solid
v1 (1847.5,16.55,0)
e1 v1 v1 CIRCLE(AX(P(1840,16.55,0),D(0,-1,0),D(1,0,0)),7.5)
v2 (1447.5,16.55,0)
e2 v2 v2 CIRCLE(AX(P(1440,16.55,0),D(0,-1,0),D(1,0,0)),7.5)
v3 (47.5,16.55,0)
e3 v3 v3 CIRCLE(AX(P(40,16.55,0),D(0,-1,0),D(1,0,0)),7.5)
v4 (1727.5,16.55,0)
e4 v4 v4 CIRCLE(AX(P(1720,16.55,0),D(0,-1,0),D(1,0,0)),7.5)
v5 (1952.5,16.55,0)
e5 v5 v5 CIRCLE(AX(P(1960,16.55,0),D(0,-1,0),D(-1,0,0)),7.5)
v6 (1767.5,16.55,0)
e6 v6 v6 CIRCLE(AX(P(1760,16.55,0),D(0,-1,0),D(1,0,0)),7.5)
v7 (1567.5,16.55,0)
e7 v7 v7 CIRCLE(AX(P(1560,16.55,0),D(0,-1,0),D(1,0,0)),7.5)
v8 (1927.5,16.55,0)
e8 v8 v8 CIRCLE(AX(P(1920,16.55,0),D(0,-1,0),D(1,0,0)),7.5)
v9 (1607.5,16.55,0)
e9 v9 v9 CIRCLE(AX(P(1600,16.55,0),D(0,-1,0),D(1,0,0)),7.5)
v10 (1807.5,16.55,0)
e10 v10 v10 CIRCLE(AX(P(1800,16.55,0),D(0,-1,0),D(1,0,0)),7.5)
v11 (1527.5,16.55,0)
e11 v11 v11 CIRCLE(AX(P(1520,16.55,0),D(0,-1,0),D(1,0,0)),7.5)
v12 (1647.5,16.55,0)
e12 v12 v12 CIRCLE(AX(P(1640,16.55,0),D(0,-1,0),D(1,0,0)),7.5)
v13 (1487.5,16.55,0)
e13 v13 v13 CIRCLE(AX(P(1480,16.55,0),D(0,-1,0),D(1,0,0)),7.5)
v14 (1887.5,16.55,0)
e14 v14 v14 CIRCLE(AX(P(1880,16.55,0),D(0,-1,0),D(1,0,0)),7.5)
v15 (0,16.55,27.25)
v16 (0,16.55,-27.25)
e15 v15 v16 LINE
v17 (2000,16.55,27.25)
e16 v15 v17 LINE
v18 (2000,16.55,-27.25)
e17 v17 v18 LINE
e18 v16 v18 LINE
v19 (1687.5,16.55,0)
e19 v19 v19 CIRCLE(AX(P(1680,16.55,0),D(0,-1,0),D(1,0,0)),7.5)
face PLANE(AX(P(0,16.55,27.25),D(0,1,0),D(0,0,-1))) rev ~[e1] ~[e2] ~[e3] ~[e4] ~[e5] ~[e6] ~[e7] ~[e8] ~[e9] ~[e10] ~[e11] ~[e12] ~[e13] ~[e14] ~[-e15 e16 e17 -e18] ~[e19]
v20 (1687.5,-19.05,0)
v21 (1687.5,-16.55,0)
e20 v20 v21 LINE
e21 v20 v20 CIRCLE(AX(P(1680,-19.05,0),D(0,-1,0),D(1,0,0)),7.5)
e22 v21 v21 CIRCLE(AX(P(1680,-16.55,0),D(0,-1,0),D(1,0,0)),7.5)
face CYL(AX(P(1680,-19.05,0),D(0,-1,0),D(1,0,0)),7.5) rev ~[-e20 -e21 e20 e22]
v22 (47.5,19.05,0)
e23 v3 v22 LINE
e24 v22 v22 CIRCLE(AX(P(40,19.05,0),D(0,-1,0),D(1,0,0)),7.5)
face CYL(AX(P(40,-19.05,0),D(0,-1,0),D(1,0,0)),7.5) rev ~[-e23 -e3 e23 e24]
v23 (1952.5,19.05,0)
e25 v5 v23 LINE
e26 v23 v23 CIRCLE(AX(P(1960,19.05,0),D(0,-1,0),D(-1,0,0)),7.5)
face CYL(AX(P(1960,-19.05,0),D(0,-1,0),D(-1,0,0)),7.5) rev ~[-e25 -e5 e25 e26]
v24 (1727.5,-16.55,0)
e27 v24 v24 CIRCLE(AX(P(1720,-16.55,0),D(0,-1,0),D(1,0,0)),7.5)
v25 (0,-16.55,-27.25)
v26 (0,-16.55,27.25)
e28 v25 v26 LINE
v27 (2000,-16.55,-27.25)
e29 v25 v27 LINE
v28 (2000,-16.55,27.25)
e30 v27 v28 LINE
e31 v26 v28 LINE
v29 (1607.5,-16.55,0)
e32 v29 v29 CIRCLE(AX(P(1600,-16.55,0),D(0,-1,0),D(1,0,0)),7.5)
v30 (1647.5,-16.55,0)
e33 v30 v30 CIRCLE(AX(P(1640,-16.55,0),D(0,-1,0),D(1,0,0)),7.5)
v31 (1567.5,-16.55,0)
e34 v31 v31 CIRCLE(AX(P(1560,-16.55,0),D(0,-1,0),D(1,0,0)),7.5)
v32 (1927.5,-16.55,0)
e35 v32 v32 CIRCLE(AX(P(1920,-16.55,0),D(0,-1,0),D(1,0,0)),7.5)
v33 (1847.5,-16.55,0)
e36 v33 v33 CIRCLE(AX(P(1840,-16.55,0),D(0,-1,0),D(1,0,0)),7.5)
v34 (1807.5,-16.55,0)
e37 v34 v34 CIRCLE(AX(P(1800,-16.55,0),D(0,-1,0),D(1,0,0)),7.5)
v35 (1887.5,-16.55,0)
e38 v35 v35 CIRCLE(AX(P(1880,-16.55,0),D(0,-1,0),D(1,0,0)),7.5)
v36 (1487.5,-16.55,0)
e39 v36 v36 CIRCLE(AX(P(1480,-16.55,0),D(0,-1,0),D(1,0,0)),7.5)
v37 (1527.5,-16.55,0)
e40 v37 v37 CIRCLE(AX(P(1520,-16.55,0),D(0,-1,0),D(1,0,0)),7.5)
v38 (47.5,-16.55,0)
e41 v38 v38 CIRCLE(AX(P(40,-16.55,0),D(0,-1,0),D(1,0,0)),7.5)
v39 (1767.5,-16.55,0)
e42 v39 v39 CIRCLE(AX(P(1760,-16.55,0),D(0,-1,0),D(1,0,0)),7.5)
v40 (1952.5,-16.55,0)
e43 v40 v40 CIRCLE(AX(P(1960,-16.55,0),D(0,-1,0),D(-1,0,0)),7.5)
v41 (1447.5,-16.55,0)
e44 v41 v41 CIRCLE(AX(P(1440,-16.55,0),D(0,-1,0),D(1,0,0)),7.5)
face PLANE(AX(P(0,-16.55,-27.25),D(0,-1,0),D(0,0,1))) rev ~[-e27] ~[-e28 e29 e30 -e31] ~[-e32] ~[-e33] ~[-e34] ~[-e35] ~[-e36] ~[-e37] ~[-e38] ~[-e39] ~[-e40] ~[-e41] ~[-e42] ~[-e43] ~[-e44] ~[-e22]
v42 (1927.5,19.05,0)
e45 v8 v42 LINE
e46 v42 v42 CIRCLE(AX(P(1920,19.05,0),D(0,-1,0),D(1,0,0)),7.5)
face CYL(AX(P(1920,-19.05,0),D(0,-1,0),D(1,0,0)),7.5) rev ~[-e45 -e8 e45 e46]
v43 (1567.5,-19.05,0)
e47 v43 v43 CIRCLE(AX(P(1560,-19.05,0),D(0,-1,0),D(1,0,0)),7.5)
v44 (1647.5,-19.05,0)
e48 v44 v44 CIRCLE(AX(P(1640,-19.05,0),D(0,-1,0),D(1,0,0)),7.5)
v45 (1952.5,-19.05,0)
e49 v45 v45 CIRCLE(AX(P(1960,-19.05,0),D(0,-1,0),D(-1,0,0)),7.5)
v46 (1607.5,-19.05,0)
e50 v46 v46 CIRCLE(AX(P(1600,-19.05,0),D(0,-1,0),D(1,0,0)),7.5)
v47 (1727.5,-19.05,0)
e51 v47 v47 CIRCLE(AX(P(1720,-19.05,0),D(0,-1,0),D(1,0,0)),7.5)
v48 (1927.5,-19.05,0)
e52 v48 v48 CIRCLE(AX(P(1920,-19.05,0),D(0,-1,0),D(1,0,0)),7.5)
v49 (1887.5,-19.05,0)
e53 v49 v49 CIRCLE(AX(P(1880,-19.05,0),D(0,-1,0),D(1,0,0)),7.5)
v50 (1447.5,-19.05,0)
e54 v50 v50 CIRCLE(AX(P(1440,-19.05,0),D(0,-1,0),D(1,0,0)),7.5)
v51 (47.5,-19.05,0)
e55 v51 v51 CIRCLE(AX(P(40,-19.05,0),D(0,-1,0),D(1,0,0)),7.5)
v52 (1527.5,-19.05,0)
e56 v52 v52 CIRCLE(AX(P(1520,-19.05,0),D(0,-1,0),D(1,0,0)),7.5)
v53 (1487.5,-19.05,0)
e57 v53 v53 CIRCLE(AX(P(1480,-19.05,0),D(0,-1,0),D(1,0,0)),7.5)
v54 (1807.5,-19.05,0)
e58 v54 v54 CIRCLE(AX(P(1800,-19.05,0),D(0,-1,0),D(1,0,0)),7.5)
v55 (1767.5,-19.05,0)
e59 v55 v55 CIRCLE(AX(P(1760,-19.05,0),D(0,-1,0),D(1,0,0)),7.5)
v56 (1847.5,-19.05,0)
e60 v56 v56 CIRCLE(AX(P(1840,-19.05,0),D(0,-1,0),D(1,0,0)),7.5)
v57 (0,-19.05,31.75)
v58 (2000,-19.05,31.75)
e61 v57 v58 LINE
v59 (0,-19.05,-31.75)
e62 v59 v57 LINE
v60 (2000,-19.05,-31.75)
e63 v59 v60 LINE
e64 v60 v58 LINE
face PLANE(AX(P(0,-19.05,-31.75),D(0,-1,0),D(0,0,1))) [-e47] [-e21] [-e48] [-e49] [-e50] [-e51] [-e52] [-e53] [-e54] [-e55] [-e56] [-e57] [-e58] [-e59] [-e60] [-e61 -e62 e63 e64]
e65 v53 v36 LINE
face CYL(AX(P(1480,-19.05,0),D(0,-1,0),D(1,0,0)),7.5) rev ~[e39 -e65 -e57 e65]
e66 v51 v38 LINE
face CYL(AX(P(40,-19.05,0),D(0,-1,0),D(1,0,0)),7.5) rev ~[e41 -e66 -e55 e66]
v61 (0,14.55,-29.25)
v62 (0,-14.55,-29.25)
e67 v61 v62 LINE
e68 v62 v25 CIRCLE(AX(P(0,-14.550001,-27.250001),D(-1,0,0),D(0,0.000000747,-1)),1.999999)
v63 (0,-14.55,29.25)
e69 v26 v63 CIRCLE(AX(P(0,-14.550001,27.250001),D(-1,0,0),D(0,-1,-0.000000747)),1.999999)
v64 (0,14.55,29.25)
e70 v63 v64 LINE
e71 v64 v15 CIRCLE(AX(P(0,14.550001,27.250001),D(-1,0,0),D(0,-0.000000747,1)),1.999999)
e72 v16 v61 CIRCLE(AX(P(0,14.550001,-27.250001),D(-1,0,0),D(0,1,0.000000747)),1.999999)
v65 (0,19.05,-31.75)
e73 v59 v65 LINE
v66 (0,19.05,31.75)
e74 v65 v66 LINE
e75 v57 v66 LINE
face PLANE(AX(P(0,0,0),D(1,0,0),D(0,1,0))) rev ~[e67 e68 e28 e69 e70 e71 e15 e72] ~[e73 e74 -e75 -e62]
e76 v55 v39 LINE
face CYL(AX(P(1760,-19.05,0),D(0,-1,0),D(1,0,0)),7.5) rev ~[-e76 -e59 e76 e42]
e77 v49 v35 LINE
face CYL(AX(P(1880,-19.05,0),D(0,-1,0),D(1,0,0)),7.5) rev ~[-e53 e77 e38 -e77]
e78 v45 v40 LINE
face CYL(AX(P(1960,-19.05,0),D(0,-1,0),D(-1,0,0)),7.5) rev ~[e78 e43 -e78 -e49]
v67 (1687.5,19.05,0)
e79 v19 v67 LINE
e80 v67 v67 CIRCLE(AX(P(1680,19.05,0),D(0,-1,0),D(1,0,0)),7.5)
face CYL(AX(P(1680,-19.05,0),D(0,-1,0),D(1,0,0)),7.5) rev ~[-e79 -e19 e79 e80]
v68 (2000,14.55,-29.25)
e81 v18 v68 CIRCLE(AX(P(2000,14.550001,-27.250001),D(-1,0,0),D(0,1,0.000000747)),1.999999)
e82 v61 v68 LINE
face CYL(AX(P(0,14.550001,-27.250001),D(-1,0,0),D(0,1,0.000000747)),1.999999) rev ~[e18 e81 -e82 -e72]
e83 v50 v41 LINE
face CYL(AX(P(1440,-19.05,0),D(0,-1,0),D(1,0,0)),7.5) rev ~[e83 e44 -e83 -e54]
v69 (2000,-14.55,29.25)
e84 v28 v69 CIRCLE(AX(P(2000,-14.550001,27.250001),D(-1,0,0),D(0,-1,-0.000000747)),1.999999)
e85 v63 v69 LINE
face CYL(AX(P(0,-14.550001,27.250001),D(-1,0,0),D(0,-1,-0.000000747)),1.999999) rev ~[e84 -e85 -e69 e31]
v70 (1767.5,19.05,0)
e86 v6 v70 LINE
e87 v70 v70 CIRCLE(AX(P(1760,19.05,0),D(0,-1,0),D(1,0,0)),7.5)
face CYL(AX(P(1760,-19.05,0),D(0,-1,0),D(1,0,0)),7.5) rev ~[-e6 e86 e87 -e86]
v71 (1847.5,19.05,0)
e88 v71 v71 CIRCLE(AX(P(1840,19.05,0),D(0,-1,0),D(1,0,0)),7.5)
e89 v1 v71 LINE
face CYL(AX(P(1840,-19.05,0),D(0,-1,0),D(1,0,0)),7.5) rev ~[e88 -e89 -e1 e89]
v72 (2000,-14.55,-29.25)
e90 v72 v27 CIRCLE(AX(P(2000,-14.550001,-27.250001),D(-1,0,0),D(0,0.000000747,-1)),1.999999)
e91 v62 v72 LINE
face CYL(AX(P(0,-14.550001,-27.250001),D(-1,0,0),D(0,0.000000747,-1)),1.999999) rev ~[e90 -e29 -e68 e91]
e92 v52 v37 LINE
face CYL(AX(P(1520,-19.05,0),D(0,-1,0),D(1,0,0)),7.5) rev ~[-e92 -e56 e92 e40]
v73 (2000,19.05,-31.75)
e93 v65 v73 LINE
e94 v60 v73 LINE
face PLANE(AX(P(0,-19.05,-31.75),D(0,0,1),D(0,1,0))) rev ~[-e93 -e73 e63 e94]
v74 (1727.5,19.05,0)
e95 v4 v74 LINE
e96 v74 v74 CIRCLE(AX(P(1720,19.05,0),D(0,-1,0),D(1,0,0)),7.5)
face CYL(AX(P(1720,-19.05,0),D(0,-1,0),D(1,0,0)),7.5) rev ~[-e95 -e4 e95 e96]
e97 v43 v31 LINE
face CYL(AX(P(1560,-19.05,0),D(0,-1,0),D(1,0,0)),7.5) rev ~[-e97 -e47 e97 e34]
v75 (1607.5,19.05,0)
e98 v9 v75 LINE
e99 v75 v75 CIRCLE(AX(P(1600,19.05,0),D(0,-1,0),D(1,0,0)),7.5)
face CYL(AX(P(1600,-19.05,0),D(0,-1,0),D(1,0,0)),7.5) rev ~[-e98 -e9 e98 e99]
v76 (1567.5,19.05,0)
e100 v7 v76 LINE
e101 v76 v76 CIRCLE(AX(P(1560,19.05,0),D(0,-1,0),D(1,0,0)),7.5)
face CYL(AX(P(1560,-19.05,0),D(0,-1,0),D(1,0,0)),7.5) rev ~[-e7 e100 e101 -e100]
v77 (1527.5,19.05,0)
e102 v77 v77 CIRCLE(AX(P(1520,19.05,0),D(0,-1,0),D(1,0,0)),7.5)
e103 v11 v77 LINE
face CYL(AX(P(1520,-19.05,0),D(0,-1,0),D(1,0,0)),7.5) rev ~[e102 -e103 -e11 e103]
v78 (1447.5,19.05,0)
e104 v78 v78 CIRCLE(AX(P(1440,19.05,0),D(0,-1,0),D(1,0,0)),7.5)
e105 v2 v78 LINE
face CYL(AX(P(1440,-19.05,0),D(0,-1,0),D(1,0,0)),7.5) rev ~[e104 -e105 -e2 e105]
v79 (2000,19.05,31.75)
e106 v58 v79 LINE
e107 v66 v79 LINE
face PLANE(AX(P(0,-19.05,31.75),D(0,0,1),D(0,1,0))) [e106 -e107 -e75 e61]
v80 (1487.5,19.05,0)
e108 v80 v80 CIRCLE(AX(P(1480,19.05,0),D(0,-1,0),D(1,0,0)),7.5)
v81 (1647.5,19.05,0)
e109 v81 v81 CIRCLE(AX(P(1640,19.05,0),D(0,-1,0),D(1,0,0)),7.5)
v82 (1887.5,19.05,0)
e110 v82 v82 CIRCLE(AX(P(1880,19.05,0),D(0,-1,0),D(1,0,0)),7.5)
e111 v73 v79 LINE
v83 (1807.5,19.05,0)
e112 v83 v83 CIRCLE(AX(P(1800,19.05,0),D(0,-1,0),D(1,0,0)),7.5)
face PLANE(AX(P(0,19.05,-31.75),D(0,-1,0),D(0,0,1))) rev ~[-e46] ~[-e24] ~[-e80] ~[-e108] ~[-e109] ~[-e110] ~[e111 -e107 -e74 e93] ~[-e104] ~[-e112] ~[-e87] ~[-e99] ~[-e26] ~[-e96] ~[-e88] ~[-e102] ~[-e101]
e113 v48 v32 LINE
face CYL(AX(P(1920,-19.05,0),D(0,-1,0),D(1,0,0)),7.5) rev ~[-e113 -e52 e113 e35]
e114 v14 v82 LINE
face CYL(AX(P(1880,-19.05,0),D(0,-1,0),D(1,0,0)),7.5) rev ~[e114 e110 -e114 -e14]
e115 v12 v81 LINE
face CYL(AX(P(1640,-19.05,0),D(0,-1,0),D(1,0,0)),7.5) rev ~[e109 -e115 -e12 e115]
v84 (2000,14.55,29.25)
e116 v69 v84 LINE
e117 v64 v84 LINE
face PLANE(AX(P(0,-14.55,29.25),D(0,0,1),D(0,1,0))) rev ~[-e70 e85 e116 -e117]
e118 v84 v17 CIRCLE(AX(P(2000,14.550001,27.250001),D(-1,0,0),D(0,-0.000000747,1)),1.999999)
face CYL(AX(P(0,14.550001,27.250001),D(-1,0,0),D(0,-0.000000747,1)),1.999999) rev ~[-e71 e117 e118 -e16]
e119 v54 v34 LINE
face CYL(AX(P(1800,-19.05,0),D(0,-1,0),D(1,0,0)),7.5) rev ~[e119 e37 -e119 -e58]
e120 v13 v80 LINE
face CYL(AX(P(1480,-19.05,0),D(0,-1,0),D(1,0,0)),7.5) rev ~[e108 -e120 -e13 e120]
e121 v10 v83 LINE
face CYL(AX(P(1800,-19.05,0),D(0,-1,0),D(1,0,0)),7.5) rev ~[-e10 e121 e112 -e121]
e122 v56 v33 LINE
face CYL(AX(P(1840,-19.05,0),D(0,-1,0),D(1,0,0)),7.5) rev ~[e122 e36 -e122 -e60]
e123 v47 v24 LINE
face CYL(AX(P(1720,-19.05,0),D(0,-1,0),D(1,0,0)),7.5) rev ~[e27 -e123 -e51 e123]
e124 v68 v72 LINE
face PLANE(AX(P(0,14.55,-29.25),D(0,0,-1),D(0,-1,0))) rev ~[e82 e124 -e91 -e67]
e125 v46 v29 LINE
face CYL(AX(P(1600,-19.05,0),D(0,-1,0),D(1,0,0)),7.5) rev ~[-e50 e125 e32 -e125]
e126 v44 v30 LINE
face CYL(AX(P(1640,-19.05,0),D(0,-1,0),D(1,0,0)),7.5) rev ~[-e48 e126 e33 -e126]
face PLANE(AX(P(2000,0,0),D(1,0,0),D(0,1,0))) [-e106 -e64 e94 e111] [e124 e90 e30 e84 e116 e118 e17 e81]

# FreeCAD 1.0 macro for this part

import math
import FreeCAD as App
import Part
import Sketcher
Q = App.Units.Quantity

doc = App.newDocument("Part")
body = doc.addObject("PartDesign::Body", "Body")

sketch1 = body.newObject("Sketcher::SketchObject", "Sketch")
sketch1.AttachmentSupport = (doc.getObject("YZ_Plane"), [""])
sketch1.MapMode = "FlatFace"
sketch1.addGeometry([
    Part.LineSegment(App.Vector(-19.1, 31.8, 0), App.Vector(-19.1, -31.8, 0)),
    Part.LineSegment(App.Vector(-19.1, -31.8, 0), App.Vector(19.1, -31.8, 0)),
    Part.LineSegment(App.Vector(19.1, -31.8, 0), App.Vector(19.1, 31.8, 0)),
    Part.LineSegment(App.Vector(19.1, 31.8, 0), App.Vector(-19.1, 31.8, 0)),
    Part.ArcOfCircle(Part.Circle(App.Vector(-14.6, 27.3, 0), App.Vector(0, 0, 1), 2), math.radians(90), math.radians(180)),
    Part.LineSegment(App.Vector(-14.6, 29.2, 0), App.Vector(14.6, 29.2, 0)),
    Part.ArcOfCircle(Part.Circle(App.Vector(14.6, 27.3, 0), App.Vector(0, 0, 1), 2), math.radians(0), math.radians(90)),
    Part.LineSegment(App.Vector(16.6, 27.2, 0), App.Vector(16.6, -27.2, 0)),
    Part.ArcOfCircle(Part.Circle(App.Vector(14.6, -27.3, 0), App.Vector(0, 0, 1), 2), math.radians(-90), math.radians(0)),
    Part.LineSegment(App.Vector(14.6, -29.2, 0), App.Vector(-14.6, -29.2, 0)),
    Part.ArcOfCircle(Part.Circle(App.Vector(-14.6, -27.3, 0), App.Vector(0, 0, 1), 2), math.radians(180), math.radians(270)),
    Part.LineSegment(App.Vector(-16.6, -27.2, 0), App.Vector(-16.6, 27.2, 0)),
], False)
sketch1.addConstraint([
    Sketcher.Constraint("Coincident", 0, 2, 1, 1),
    Sketcher.Constraint("Coincident", 1, 2, 2, 1),
    Sketcher.Constraint("Coincident", 2, 2, 3, 1),
    Sketcher.Constraint("Coincident", 3, 2, 0, 1),
    Sketcher.Constraint("Tangent", 4, 1, 5, 1),
    Sketcher.Constraint("Tangent", 5, 2, 6, 2),
    Sketcher.Constraint("Tangent", 6, 1, 7, 1),
    Sketcher.Constraint("Tangent", 7, 2, 8, 2),
    Sketcher.Constraint("Tangent", 8, 1, 9, 1),
    Sketcher.Constraint("Tangent", 9, 2, 10, 2),
    Sketcher.Constraint("Tangent", 10, 1, 11, 1),
    Sketcher.Constraint("Tangent", 11, 2, 4, 2),
    Sketcher.Constraint("Vertical", 0),
    Sketcher.Constraint("Horizontal", 1),
    Sketcher.Constraint("Vertical", 2),
    Sketcher.Constraint("Horizontal", 3),
    Sketcher.Constraint("Horizontal", 5),
    Sketcher.Constraint("Vertical", 7),
    Sketcher.Constraint("Horizontal", 9),
    Sketcher.Constraint("Vertical", 11),
    Sketcher.Constraint("Equal", 4, 6),
    Sketcher.Constraint("Equal", 6, 8),
    Sketcher.Constraint("Equal", 8, 10),
    Sketcher.Constraint("Symmetric", 4, 3, 8, 3, -1, 1),
    Sketcher.Constraint("Symmetric", 0, 2, 2, 2, -1, 1),
    Sketcher.Constraint("Radius", 4, Q("1.999999 mm")),
    Sketcher.Constraint("DistanceX", 1, 1, 1, 2, Q("38.1 mm")),
    Sketcher.Constraint("DistanceX", 5, 1, 5, 2, Q("29.1 mm")),
    Sketcher.Constraint("DistanceY", 0, 2, 0, 1, Q("63.5 mm")),
    Sketcher.Constraint("DistanceY", 7, 2, 7, 1, Q("54.5 mm")),
])
pad1 = body.newObject("PartDesign::Pad", "Pad")
pad1.Profile = sketch1
pad1.Length = 2000

sketch2 = body.newObject("Sketcher::SketchObject", "Sketch001")
sketch2.AttachmentSupport = (doc.getObject("XZ_Plane"), [""])
sketch2.MapMode = "FlatFace"
sketch2.AttachmentOffset = App.Placement(App.Vector(0, 0, 19.05), App.Rotation())
sketch2.addGeometry(Part.Circle(App.Vector(40, 0, 0), App.Vector(0, 0, 1), 8), False)
sketch2.addConstraint([
    Sketcher.Constraint("PointOnObject", 0, 3, -1),
    Sketcher.Constraint("Diameter", 0, Q("15 mm")),
    Sketcher.Constraint("DistanceX", -1, 1, 0, 3, Q("40 mm")),
])
pocket1 = body.newObject("PartDesign::Pocket", "Pocket")
pocket1.Profile = sketch2
pocket1.Type = "ThroughAll"

sketch3 = body.newObject("Sketcher::SketchObject", "Sketch002")
sketch3.AttachmentSupport = (doc.getObject("XZ_Plane"), [""])
sketch3.MapMode = "FlatFace"
sketch3.AttachmentOffset = App.Placement(App.Vector(0, 0, 19.05), App.Rotation())
sketch3.addGeometry([
    Part.Circle(App.Vector(1960, 0, 0), App.Vector(0, 0, 1), 8),
    Part.Circle(App.Vector(1440, 0, 0), App.Vector(0, 0, 1), 8),
    Part.Circle(App.Vector(1480, 0, 0), App.Vector(0, 0, 1), 8),
    Part.Circle(App.Vector(1520, 0, 0), App.Vector(0, 0, 1), 8),
    Part.Circle(App.Vector(1560, 0, 0), App.Vector(0, 0, 1), 8),
    Part.Circle(App.Vector(1600, 0, 0), App.Vector(0, 0, 1), 8),
    Part.Circle(App.Vector(1640, 0, 0), App.Vector(0, 0, 1), 8),
    Part.Circle(App.Vector(1680, 0, 0), App.Vector(0, 0, 1), 8),
    Part.Circle(App.Vector(1720, 0, 0), App.Vector(0, 0, 1), 8),
    Part.Circle(App.Vector(1760, 0, 0), App.Vector(0, 0, 1), 8),
    Part.Circle(App.Vector(1800, 0, 0), App.Vector(0, 0, 1), 8),
    Part.Circle(App.Vector(1840, 0, 0), App.Vector(0, 0, 1), 8),
    Part.Circle(App.Vector(1880, 0, 0), App.Vector(0, 0, 1), 8),
    Part.Circle(App.Vector(1920, 0, 0), App.Vector(0, 0, 1), 8),
], False)
sketch3.addConstraint([
    Sketcher.Constraint("Equal", 0, 1),
    Sketcher.Constraint("Equal", 1, 2),
    Sketcher.Constraint("Equal", 2, 3),
    Sketcher.Constraint("Equal", 3, 4),
    Sketcher.Constraint("Equal", 4, 5),
    Sketcher.Constraint("Equal", 5, 6),
    Sketcher.Constraint("Equal", 6, 7),
    Sketcher.Constraint("Equal", 7, 8),
    Sketcher.Constraint("Equal", 8, 9),
    Sketcher.Constraint("Equal", 9, 10),
    Sketcher.Constraint("Equal", 10, 11),
    Sketcher.Constraint("Equal", 11, 12),
    Sketcher.Constraint("Equal", 12, 13),
    Sketcher.Constraint("PointOnObject", 0, 3, -1),
    Sketcher.Constraint("PointOnObject", 1, 3, -1),
    Sketcher.Constraint("PointOnObject", 2, 3, -1),
    Sketcher.Constraint("PointOnObject", 3, 3, -1),
    Sketcher.Constraint("PointOnObject", 4, 3, -1),
    Sketcher.Constraint("PointOnObject", 5, 3, -1),
    Sketcher.Constraint("PointOnObject", 6, 3, -1),
    Sketcher.Constraint("PointOnObject", 7, 3, -1),
    Sketcher.Constraint("PointOnObject", 8, 3, -1),
    Sketcher.Constraint("PointOnObject", 9, 3, -1),
    Sketcher.Constraint("PointOnObject", 10, 3, -1),
    Sketcher.Constraint("PointOnObject", 11, 3, -1),
    Sketcher.Constraint("PointOnObject", 12, 3, -1),
    Sketcher.Constraint("PointOnObject", 13, 3, -1),
    Sketcher.Constraint("Diameter", 0, Q("15 mm")),
    Sketcher.Constraint("DistanceX", -1, 1, 0, 3, Q("1960 mm")),
    Sketcher.Constraint("DistanceX", -1, 1, 1, 3, Q("1440 mm")),
    Sketcher.Constraint("DistanceX", -1, 1, 2, 3, Q("1480 mm")),
    Sketcher.Constraint("DistanceX", -1, 1, 3, 3, Q("1520 mm")),
    Sketcher.Constraint("DistanceX", -1, 1, 4, 3, Q("1560 mm")),
    Sketcher.Constraint("DistanceX", -1, 1, 5, 3, Q("1600 mm")),
    Sketcher.Constraint("DistanceX", -1, 1, 6, 3, Q("1640 mm")),
    Sketcher.Constraint("DistanceX", -1, 1, 7, 3, Q("1680 mm")),
    Sketcher.Constraint("DistanceX", -1, 1, 8, 3, Q("1720 mm")),
    Sketcher.Constraint("DistanceX", -1, 1, 9, 3, Q("1760 mm")),
    Sketcher.Constraint("DistanceX", -1, 1, 10, 3, Q("1800 mm")),
    Sketcher.Constraint("DistanceX", -1, 1, 11, 3, Q("1840 mm")),
    Sketcher.Constraint("DistanceX", -1, 1, 12, 3, Q("1880 mm")),
    Sketcher.Constraint("DistanceX", -1, 1, 13, 3, Q("1920 mm")),
])
pocket2 = body.newObject("PartDesign::Pocket", "Pocket001")
pocket2.Profile = sketch3
pocket2.Type = "ThroughAll"

doc.recompute()
